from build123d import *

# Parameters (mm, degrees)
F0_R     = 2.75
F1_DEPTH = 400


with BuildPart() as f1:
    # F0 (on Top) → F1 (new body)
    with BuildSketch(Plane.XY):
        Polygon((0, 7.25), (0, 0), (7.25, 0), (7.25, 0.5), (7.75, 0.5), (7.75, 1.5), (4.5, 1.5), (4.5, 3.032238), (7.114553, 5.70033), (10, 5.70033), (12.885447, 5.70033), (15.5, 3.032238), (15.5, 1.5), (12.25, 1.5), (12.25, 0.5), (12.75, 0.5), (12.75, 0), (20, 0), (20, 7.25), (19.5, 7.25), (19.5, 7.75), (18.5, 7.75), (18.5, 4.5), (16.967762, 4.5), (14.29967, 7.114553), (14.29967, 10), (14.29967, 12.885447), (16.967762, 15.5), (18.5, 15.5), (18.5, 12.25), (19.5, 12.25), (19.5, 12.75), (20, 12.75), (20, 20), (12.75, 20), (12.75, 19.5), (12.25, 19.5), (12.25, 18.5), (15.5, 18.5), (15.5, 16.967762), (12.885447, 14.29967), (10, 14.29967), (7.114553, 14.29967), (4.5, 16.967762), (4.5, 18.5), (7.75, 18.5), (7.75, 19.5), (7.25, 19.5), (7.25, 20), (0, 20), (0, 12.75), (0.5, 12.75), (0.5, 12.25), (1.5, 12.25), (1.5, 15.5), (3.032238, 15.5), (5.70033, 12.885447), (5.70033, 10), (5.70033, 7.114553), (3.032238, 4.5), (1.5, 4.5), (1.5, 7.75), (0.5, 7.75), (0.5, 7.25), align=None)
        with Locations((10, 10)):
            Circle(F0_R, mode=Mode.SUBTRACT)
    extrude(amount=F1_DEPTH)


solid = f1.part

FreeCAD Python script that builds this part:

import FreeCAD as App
import Part
import Sketcher
from FreeCAD import Vector
Q = App.Units.Quantity

doc = App.newDocument("Part")
body = doc.addObject("PartDesign::Body", "Body")

# Sketch on XY plane
sketch1 = body.newObject("Sketcher::SketchObject", "Sketch")
sketch1.AttachmentSupport = (doc.getObject("XY_Plane"), [""])
sketch1.MapMode = "FlatFace"
sketch1.addGeometry([
    Part.LineSegment(Vector(0, 7.25, 0), Vector(0, 0, 0)),  # 0
    Part.LineSegment(Vector(0, 0, 0), Vector(7.25, 0, 0)),  # 1
    Part.LineSegment(Vector(7.25, 0, 0), Vector(7.25, 0.5, 0)),  # 2
    Part.LineSegment(Vector(7.25, 0.5, 0), Vector(7.75, 0.5, 0)),  # 3
    Part.LineSegment(Vector(7.75, 0.5, 0), Vector(7.75, 1.5, 0)),  # 4
    Part.LineSegment(Vector(7.75, 1.5, 0), Vector(4.5, 1.5, 0)),  # 5
    Part.LineSegment(Vector(4.5, 1.5, 0), Vector(4.5, 3.032238, 0)),  # 6
    Part.LineSegment(Vector(4.5, 3.032238, 0), Vector(7.114553, 5.70033, 0)),  # 7
    Part.LineSegment(Vector(7.114553, 5.70033, 0), Vector(12.885447, 5.70033, 0)),  # 8
    Part.LineSegment(Vector(12.885447, 5.70033, 0), Vector(15.5, 3.032238, 0)),  # 9
    Part.LineSegment(Vector(15.5, 3.032238, 0), Vector(15.5, 1.5, 0)),  # 10
    Part.LineSegment(Vector(15.5, 1.5, 0), Vector(12.25, 1.5, 0)),  # 11
    Part.LineSegment(Vector(12.25, 1.5, 0), Vector(12.25, 0.5, 0)),  # 12
    Part.LineSegment(Vector(12.25, 0.5, 0), Vector(12.75, 0.5, 0)),  # 13
    Part.LineSegment(Vector(12.75, 0.5, 0), Vector(12.75, 0, 0)),  # 14
    Part.LineSegment(Vector(12.75, 0, 0), Vector(20, 0, 0)),  # 15
    Part.LineSegment(Vector(20, 0, 0), Vector(20, 7.25, 0)),  # 16
    Part.LineSegment(Vector(20, 7.25, 0), Vector(19.5, 7.25, 0)),  # 17
    Part.LineSegment(Vector(19.5, 7.25, 0), Vector(19.5, 7.75, 0)),  # 18
    Part.LineSegment(Vector(19.5, 7.75, 0), Vector(18.5, 7.75, 0)),  # 19
    Part.LineSegment(Vector(18.5, 7.75, 0), Vector(18.5, 4.5, 0)),  # 20
    Part.LineSegment(Vector(18.5, 4.5, 0), Vector(16.967762, 4.5, 0)),  # 21
    Part.LineSegment(Vector(16.967762, 4.5, 0), Vector(14.29967, 7.114553, 0)),  # 22
    Part.LineSegment(Vector(14.29967, 7.114553, 0), Vector(14.29967, 12.885447, 0)),  # 23
    Part.LineSegment(Vector(14.29967, 12.885447, 0), Vector(16.967762, 15.5, 0)),  # 24
    Part.LineSegment(Vector(16.967762, 15.5, 0), Vector(18.5, 15.5, 0)),  # 25
    Part.LineSegment(Vector(18.5, 15.5, 0), Vector(18.5, 12.25, 0)),  # 26
    Part.LineSegment(Vector(18.5, 12.25, 0), Vector(19.5, 12.25, 0)),  # 27
    Part.LineSegment(Vector(19.5, 12.25, 0), Vector(19.5, 12.75, 0)),  # 28
    Part.LineSegment(Vector(19.5, 12.75, 0), Vector(20, 12.75, 0)),  # 29
    Part.LineSegment(Vector(20, 12.75, 0), Vector(20, 20, 0)),  # 30
    Part.LineSegment(Vector(20, 20, 0), Vector(12.75, 20, 0)),  # 31
    Part.LineSegment(Vector(12.75, 20, 0), Vector(12.75, 19.5, 0)),  # 32
    Part.LineSegment(Vector(12.75, 19.5, 0), Vector(12.25, 19.5, 0)),  # 33
    Part.LineSegment(Vector(12.25, 19.5, 0), Vector(12.25, 18.5, 0)),  # 34
    Part.LineSegment(Vector(12.25, 18.5, 0), Vector(15.5, 18.5, 0)),  # 35
    Part.LineSegment(Vector(15.5, 18.5, 0), Vector(15.5, 16.967762, 0)),  # 36
    Part.LineSegment(Vector(15.5, 16.967762, 0), Vector(12.885447, 14.29967, 0)),  # 37
    Part.LineSegment(Vector(12.885447, 14.29967, 0), Vector(7.114553, 14.29967, 0)),  # 38
    Part.LineSegment(Vector(7.114553, 14.29967, 0), Vector(4.5, 16.967762, 0)),  # 39
    Part.LineSegment(Vector(4.5, 16.967762, 0), Vector(4.5, 18.5, 0)),  # 40
    Part.LineSegment(Vector(4.5, 18.5, 0), Vector(7.75, 18.5, 0)),  # 41
    Part.LineSegment(Vector(7.75, 18.5, 0), Vector(7.75, 19.5, 0)),  # 42
    Part.LineSegment(Vector(7.75, 19.5, 0), Vector(7.25, 19.5, 0)),  # 43
    Part.LineSegment(Vector(7.25, 19.5, 0), Vector(7.25, 20, 0)),  # 44
    Part.LineSegment(Vector(7.25, 20, 0), Vector(0, 20, 0)),  # 45
    Part.LineSegment(Vector(0, 20, 0), Vector(0, 12.75, 0)),  # 46
    Part.LineSegment(Vector(0, 12.75, 0), Vector(0.5, 12.75, 0)),  # 47
    Part.LineSegment(Vector(0.5, 12.75, 0), Vector(0.5, 12.25, 0)),  # 48
    Part.LineSegment(Vector(0.5, 12.25, 0), Vector(1.5, 12.25, 0)),  # 49
    Part.LineSegment(Vector(1.5, 12.25, 0), Vector(1.5, 15.5, 0)),  # 50
    Part.LineSegment(Vector(1.5, 15.5, 0), Vector(3.032238, 15.5, 0)),  # 51
    Part.LineSegment(Vector(3.032238, 15.5, 0), Vector(5.70033, 12.885447, 0)),  # 52
    Part.LineSegment(Vector(5.70033, 12.885447, 0), Vector(5.70033, 7.114553, 0)),  # 53
    Part.LineSegment(Vector(5.70033, 7.114553, 0), Vector(3.032238, 4.5, 0)),  # 54
    Part.LineSegment(Vector(3.032238, 4.5, 0), Vector(1.5, 4.5, 0)),  # 55
    Part.LineSegment(Vector(1.5, 4.5, 0), Vector(1.5, 7.75, 0)),  # 56
    Part.LineSegment(Vector(1.5, 7.75, 0), Vector(0.5, 7.75, 0)),  # 57
    Part.LineSegment(Vector(0.5, 7.75, 0), Vector(0.5, 7.25, 0)),  # 58
    Part.LineSegment(Vector(0.5, 7.25, 0), Vector(0, 7.25, 0)),  # 59
    Part.Circle(Vector(10, 10, 0), Vector(0, 0, 1), 2.75),  # 60
], False)
sketch1.addConstraint([
    Sketcher.Constraint("Coincident", 0, 2, 1, 1),
    Sketcher.Constraint("Coincident", 1, 2, 2, 1),
    Sketcher.Constraint("Coincident", 2, 2, 3, 1),
    Sketcher.Constraint("Coincident", 3, 2, 4, 1),
    Sketcher.Constraint("Coincident", 4, 2, 5, 1),
    Sketcher.Constraint("Coincident", 5, 2, 6, 1),
    Sketcher.Constraint("Coincident", 6, 2, 7, 1),
    Sketcher.Constraint("Coincident", 7, 2, 8, 1),
    Sketcher.Constraint("Coincident", 8, 2, 9, 1),
    Sketcher.Constraint("Coincident", 9, 2, 10, 1),
    Sketcher.Constraint("Coincident", 10, 2, 11, 1),
    Sketcher.Constraint("Coincident", 11, 2, 12, 1),
    Sketcher.Constraint("Coincident", 12, 2, 13, 1),
    Sketcher.Constraint("Coincident", 13, 2, 14, 1),
    Sketcher.Constraint("Coincident", 14, 2, 15, 1),
    Sketcher.Constraint("Coincident", 15, 2, 16, 1),
    Sketcher.Constraint("Coincident", 16, 2, 17, 1),
    Sketcher.Constraint("Coincident", 17, 2, 18, 1),
    Sketcher.Constraint("Coincident", 18, 2, 19, 1),
    Sketcher.Constraint("Coincident", 19, 2, 20, 1),
    Sketcher.Constraint("Coincident", 20, 2, 21, 1),
    Sketcher.Constraint("Coincident", 21, 2, 22, 1),
    Sketcher.Constraint("Coincident", 22, 2, 23, 1),
    Sketcher.Constraint("Coincident", 23, 2, 24, 1),
    Sketcher.Constraint("Coincident", 24, 2, 25, 1),
    Sketcher.Constraint("Coincident", 25, 2, 26, 1),
    Sketcher.Constraint("Coincident", 26, 2, 27, 1),
    Sketcher.Constraint("Coincident", 27, 2, 28, 1),
    Sketcher.Constraint("Coincident", 28, 2, 29, 1),
    Sketcher.Constraint("Coincident", 29, 2, 30, 1),
    Sketcher.Constraint("Coincident", 30, 2, 31, 1),
    Sketcher.Constraint("Coincident", 31, 2, 32, 1),
    Sketcher.Constraint("Coincident", 32, 2, 33, 1),
    Sketcher.Constraint("Coincident", 33, 2, 34, 1),
    Sketcher.Constraint("Coincident", 34, 2, 35, 1),
    Sketcher.Constraint("Coincident", 35, 2, 36, 1),
    Sketcher.Constraint("Coincident", 36, 2, 37, 1),
    Sketcher.Constraint("Coincident", 37, 2, 38, 1),
    Sketcher.Constraint("Coincident", 38, 2, 39, 1),
    Sketcher.Constraint("Coincident", 39, 2, 40, 1),
    Sketcher.Constraint("Coincident", 40, 2, 41, 1),
    Sketcher.Constraint("Coincident", 41, 2, 42, 1),
    Sketcher.Constraint("Coincident", 42, 2, 43, 1),
    Sketcher.Constraint("Coincident", 43, 2, 44, 1),
    Sketcher.Constraint("Coincident", 44, 2, 45, 1),
    Sketcher.Constraint("Coincident", 45, 2, 46, 1),
    Sketcher.Constraint("Coincident", 46, 2, 47, 1),
    Sketcher.Constraint("Coincident", 47, 2, 48, 1),
    Sketcher.Constraint("Coincident", 48, 2, 49, 1),
    Sketcher.Constraint("Coincident", 49, 2, 50, 1),
    Sketcher.Constraint("Coincident", 50, 2, 51, 1),
    Sketcher.Constraint("Coincident", 51, 2, 52, 1),
    Sketcher.Constraint("Coincident", 52, 2, 53, 1),
    Sketcher.Constraint("Coincident", 53, 2, 54, 1),
    Sketcher.Constraint("Coincident", 54, 2, 55, 1),
    Sketcher.Constraint("Coincident", 55, 2, 56, 1),
    Sketcher.Constraint("Coincident", 56, 2, 57, 1),
    Sketcher.Constraint("Coincident", 57, 2, 58, 1),
    Sketcher.Constraint("Coincident", 58, 2, 59, 1),
    Sketcher.Constraint("Coincident", 59, 2, 0, 1),
    Sketcher.Constraint("Vertical", 0),
    Sketcher.Constraint("Horizontal", 1),
    Sketcher.Constraint("Vertical", 2),
    Sketcher.Constraint("Horizontal", 3),
    Sketcher.Constraint("Vertical", 4),
    Sketcher.Constraint("Horizontal", 5),
    Sketcher.Constraint("Vertical", 6),
    Sketcher.Constraint("Horizontal", 8),
    Sketcher.Constraint("Vertical", 10),
    Sketcher.Constraint("Horizontal", 11),
    Sketcher.Constraint("Vertical", 12),
    Sketcher.Constraint("Horizontal", 13),
    Sketcher.Constraint("Vertical", 14),
    Sketcher.Constraint("Horizontal", 15),
    Sketcher.Constraint("Vertical", 16),
    Sketcher.Constraint("Horizontal", 17),
    Sketcher.Constraint("Vertical", 18),
    Sketcher.Constraint("Horizontal", 19),
    Sketcher.Constraint("Vertical", 20),
    Sketcher.Constraint("Horizontal", 21),
    Sketcher.Constraint("Vertical", 23),
    Sketcher.Constraint("Horizontal", 25),
    Sketcher.Constraint("Vertical", 26),
    Sketcher.Constraint("Horizontal", 27),
    Sketcher.Constraint("Vertical", 28),
    Sketcher.Constraint("Horizontal", 29),
    Sketcher.Constraint("Vertical", 30),
    Sketcher.Constraint("Horizontal", 31),
    Sketcher.Constraint("Vertical", 32),
    Sketcher.Constraint("Horizontal", 33),
    Sketcher.Constraint("Vertical", 34),
    Sketcher.Constraint("Horizontal", 35),
    Sketcher.Constraint("Vertical", 36),
    Sketcher.Constraint("Horizontal", 38),
    Sketcher.Constraint("Vertical", 40),
    Sketcher.Constraint("Horizontal", 41),
    Sketcher.Constraint("Vertical", 42),
    Sketcher.Constraint("Horizontal", 43),
    Sketcher.Constraint("Vertical", 44),
    Sketcher.Constraint("Horizontal", 45),
    Sketcher.Constraint("Vertical", 46),
    Sketcher.Constraint("Horizontal", 47),
    Sketcher.Constraint("Vertical", 48),
    Sketcher.Constraint("Horizontal", 49),
    Sketcher.Constraint("Vertical", 50),
    Sketcher.Constraint("Horizontal", 51),
    Sketcher.Constraint("Vertical", 53),
    Sketcher.Constraint("Horizontal", 55),
    Sketcher.Constraint("Vertical", 56),
    Sketcher.Constraint("Horizontal", 57),
    Sketcher.Constraint("Vertical", 58),
    Sketcher.Constraint("Horizontal", 59),
    Sketcher.Constraint("Coincident", 0, 2, -1, 1),
    Sketcher.Constraint("PointOnObject", 14, 2, -1),
    Sketcher.Constraint("PointOnObject", 45, 2, -2),
    Sketcher.Constraint("Perpendicular", 7, 22),
    Sketcher.Constraint("Perpendicular", 9, 24),
    Sketcher.Constraint("Perpendicular", 22, 37),
    Sketcher.Constraint("Perpendicular", 24, 39),
    Sketcher.Constraint("Perpendicular", 37, 52),
    Sketcher.Constraint("Perpendicular", 39, 54),
    Sketcher.Constraint("Horizontal", 6, 2, 9, 2),
    Sketcher.Constraint("Horizontal", 5, 2, 10, 2),
    Sketcher.Constraint("Horizontal", 3, 2, 12, 2),
    Sketcher.Constraint("Horizontal", 36, 2, 39, 2),
    Sketcher.Constraint("Horizontal", 35, 2, 40, 2),
    Sketcher.Constraint("Horizontal", 33, 2, 42, 2),
    Sketcher.Constraint("Horizontal", 31, 2, 44, 2),
    Sketcher.Constraint("Horizontal", 29, 2, 46, 2),
    Sketcher.Constraint("Horizontal", 27, 2, 48, 2),
    Sketcher.Constraint("Horizontal", 25, 2, 50, 2),
    Sketcher.Constraint("Horizontal", 23, 2, 52, 2),
    Sketcher.Constraint("Horizontal", 22, 2, 53, 2),
    Sketcher.Constraint("Horizontal", 21, 2, 54, 2),
    Sketcher.Constraint("Horizontal", 19, 2, 56, 2),
    Sketcher.Constraint("Horizontal", 17, 2, 58, 2),
    Sketcher.Constraint("Vertical", 21, 2, 24, 2),
    Sketcher.Constraint("Vertical", 20, 2, 25, 2),
    Sketcher.Constraint("Vertical", 18, 2, 27, 2),
    Sketcher.Constraint("Vertical", 16, 2, 29, 2),
    Sketcher.Constraint("Vertical", 14, 2, 31, 2),
    Sketcher.Constraint("Vertical", 12, 2, 33, 2),
    Sketcher.Constraint("Vertical", 10, 2, 35, 2),
    Sketcher.Constraint("Vertical", 8, 2, 37, 2),
    Sketcher.Constraint("Vertical", 7, 2, 38, 2),
    Sketcher.Constraint("Vertical", 6, 2, 39, 2),
    Sketcher.Constraint("Vertical", 4, 2, 41, 2),
    Sketcher.Constraint("Vertical", 2, 2, 43, 2),
    Sketcher.Constraint("Vertical", 50, 2, 55, 2),
    Sketcher.Constraint("Vertical", 48, 2, 57, 2),
    Sketcher.Constraint("Equal", 5, 11),
    Sketcher.Constraint("Equal", 3, 13),
    Sketcher.Constraint("Equal", 1, 15),
    Sketcher.Constraint("Equal", 13, 17),
    Sketcher.Constraint("Equal", 43, 47),
    Sketcher.Constraint("Equal", 27, 49),
    Sketcher.Constraint("Equal", 25, 51),
    Sketcher.Constraint("Equal", 45, 0),
    Sketcher.Constraint("Equal", 59, 2),
    Sketcher.Constraint("Equal", 57, 4),
    Sketcher.Constraint("Equal", 55, 6),
    Sketcher.Constraint("Equal", 14, 18),
    Sketcher.Constraint("Equal", 41, 20),
    Sketcher.Constraint("Equal", 38, 23),
    Sketcher.Constraint("Equal", 20, 26),
    Sketcher.Constraint("Equal", 18, 28),
    Sketcher.Constraint("Equal", 16, 30),
    Sketcher.Constraint("Equal", 28, 32),
    Sketcher.Constraint("Equal", 12, 34),
    Sketcher.Constraint("Equal", 10, 36),
    Sketcher.Constraint("Equal", 9, 22),
    Sketcher.Constraint("Diameter", 60, Q("5.5 mm")),
    Sketcher.Constraint("DistanceX", 19, 2, 19, 1, Q("1 mm")),
    Sketcher.Constraint("DistanceX", 3, 1, 3, 2, Q("0.5 mm")),
    Sketcher.Constraint("DistanceX", -1, 1, 60, 3, Q("10 mm")),
    Sketcher.Constraint("DistanceY", -1, 1, 60, 3, Q("10 mm")),
    Sketcher.Constraint("DistanceX", -1, 1, 15, 2, Q("20 mm")),
    Sketcher.Constraint("DistanceX", 1, 1, 1, 2, Q("7.25 mm")),
    Sketcher.Constraint("DistanceX", 5, 2, 5, 1, Q("3.25 mm")),
    Sketcher.Constraint("DistanceX", 8, 1, 8, 2, Q("5.770894 mm")),
    Sketcher.Constraint("DistanceX", 21, 2, 21, 1, Q("1.532238 mm")),
    Sketcher.Constraint("DistanceY", -1, 1, 7, 2, Q("5.70033 mm")),
])
pad1 = body.newObject("PartDesign::Pad", "Pad")
pad1.Profile = sketch1
pad1.Length = 400

doc.recompute()
